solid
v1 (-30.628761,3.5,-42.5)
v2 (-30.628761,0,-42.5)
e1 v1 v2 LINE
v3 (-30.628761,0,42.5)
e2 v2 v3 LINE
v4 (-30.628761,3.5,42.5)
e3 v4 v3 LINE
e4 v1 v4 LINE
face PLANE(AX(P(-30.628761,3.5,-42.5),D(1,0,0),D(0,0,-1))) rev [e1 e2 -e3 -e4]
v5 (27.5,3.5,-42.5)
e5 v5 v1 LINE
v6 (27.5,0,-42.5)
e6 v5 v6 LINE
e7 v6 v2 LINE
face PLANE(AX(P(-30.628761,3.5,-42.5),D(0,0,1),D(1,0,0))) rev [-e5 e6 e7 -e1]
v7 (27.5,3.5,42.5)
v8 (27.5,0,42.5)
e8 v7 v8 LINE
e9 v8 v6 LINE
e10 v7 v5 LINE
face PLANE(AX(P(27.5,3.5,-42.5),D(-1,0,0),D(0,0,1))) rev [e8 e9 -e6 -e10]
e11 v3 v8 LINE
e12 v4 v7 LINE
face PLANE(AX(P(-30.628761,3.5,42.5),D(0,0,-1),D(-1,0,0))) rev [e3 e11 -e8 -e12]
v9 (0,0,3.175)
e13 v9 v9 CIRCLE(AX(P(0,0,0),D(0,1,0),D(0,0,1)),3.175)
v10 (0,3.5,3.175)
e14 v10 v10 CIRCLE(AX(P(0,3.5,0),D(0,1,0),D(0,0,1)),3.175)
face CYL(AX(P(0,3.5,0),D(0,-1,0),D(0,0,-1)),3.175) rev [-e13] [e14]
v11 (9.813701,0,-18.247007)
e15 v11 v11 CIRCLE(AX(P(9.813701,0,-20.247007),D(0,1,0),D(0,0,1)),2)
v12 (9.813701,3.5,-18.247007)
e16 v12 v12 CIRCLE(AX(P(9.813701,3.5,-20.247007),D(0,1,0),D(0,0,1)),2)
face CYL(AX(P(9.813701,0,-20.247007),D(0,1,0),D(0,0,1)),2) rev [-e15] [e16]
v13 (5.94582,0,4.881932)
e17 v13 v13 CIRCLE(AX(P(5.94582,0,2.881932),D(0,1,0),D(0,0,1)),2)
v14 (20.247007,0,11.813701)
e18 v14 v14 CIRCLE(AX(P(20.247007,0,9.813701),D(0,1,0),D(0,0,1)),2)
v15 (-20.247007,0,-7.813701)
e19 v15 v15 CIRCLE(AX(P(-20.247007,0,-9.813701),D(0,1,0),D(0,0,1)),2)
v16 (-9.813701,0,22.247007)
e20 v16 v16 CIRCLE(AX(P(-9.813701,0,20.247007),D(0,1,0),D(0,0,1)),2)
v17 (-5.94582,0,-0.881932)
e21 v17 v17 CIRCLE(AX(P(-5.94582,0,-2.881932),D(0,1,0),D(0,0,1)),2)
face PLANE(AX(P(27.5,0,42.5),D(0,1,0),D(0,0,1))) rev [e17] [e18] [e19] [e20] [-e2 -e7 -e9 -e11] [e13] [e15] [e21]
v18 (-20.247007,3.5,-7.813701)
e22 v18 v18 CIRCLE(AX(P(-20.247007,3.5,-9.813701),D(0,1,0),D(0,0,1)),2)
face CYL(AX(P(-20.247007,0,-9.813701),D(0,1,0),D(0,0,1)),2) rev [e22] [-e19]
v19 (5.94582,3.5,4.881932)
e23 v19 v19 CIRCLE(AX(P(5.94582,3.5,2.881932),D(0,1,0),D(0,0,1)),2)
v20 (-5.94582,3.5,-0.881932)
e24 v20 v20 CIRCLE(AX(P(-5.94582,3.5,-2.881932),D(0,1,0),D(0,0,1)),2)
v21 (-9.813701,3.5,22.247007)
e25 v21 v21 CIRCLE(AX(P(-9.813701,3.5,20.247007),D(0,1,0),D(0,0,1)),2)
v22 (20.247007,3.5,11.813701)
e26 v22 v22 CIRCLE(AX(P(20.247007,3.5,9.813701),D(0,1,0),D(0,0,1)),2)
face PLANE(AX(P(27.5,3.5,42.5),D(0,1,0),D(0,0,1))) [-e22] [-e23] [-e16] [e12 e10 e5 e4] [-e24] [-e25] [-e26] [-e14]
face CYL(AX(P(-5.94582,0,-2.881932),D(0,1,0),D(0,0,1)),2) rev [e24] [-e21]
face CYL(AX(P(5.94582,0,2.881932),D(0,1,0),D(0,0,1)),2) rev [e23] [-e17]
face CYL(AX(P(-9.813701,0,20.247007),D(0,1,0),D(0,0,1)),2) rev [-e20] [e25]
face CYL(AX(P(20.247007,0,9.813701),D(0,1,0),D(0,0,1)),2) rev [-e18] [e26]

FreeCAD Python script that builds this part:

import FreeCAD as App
import Part
import Sketcher
from FreeCAD import Vector
Q = App.Units.Quantity

doc = App.newDocument("Part")
params = doc.addObject("Spreadsheet::Sheet", "Params")
for row, (alias, value) in enumerate([
    ("sketch1_diameter", "6.35 mm"),
    ("sketch1_height", "85 mm"),
    ("pad1_length", "3.5 mm"),
    ("sketch2_diameter", "4 mm"),
], start=1):
    params.set(f"A{row}", alias)
    params.set(f"B{row}", "=" + value)
    params.setAlias(f"B{row}", alias)

body = doc.addObject("PartDesign::Body", "Body")

sketch1 = doc.addObject("Sketcher::SketchObject", "Sketch")
body.addObject(sketch1)
sketch1.AttachmentSupport = (doc.XZ_Plane, [""])
sketch1.MapMode = "FlatFace"
sketch1.addGeometry([
    Part.LineSegment(Vector(-30.6, -42.5, 0), Vector(-30.6, 42.5, 0)),
    Part.LineSegment(Vector(-30.6, 42.5, 0), Vector(27.5, 42.5, 0)),
    Part.LineSegment(Vector(27.5, 42.5, 0), Vector(27.5, -42.5, 0)),
    Part.LineSegment(Vector(27.5, -42.5, 0), Vector(-30.6, -42.5, 0)),
    Part.Circle(Vector(0, 0, 0), Vector(0, 0, 1), 3.2),
], False)
sketch1.addConstraint([
    Sketcher.Constraint("Coincident", 0, 2, 1, 1),
    Sketcher.Constraint("Coincident", 1, 2, 2, 1),
    Sketcher.Constraint("Coincident", 2, 2, 3, 1),
    Sketcher.Constraint("Coincident", 3, 2, 0, 1),
    Sketcher.Constraint("Vertical", 0),
    Sketcher.Constraint("Horizontal", 1),
    Sketcher.Constraint("Vertical", 2),
    Sketcher.Constraint("Horizontal", 3),
    Sketcher.Constraint("Coincident", 4, 3, -1, 1),
    Sketcher.Constraint("Diameter", 4, Q("6.35 mm")),
    Sketcher.Constraint("DistanceY", 0, 1, 0, 2, Q("85 mm")),
    Sketcher.Constraint("DistanceY", -1, 1, 0, 2, Q("42.5 mm")),
    Sketcher.Constraint("DistanceX", -1, 1, 1, 2, Q("27.5 mm")),
    Sketcher.Constraint("DistanceX", 1, 1, 1, 2, Q("58.128761 mm")),
])
sketch1.setExpression("Constraints[9]", "Params.sketch1_diameter")
sketch1.setExpression("Constraints[10]", "Params.sketch1_height")
pad1 = doc.addObject("PartDesign::Pad", "Pad")
body.addObject(pad1)
pad1.Profile = sketch1
pad1.setExpression("Length", "Params.pad1_length")
pad1.Reversed = True

sketch2 = doc.addObject("Sketcher::SketchObject", "Sketch001")
body.addObject(sketch2)
sketch2.AttachmentSupport = (doc.XZ_Plane, [""])
sketch2.MapMode = "FlatFace"
sketch2.AttachmentOffset = App.Placement(Vector(0, 0, -3.5), App.Rotation())
sketch2.addGeometry([
    Part.Circle(Vector(-5.9, -2.9, 0), Vector(0, 0, 1), 2),
    Part.Circle(Vector(5.9, 2.9, 0), Vector(0, 0, 1), 2),
    Part.Circle(Vector(20.2, 9.8, 0), Vector(0, 0, 1), 2),
    Part.Circle(Vector(9.8, -20.2, 0), Vector(0, 0, 1), 2),
    Part.Circle(Vector(-9.8, 20.2, 0), Vector(0, 0, 1), 2),
    Part.Circle(Vector(-20.2, -9.8, 0), Vector(0, 0, 1), 2),
], False)
sketch2.addConstraint([
    Sketcher.Constraint("Equal", 0, 1),
    Sketcher.Constraint("Equal", 1, 2),
    Sketcher.Constraint("Equal", 2, 3),
    Sketcher.Constraint("Equal", 3, 4),
    Sketcher.Constraint("Equal", 4, 5),
    Sketcher.Constraint("Symmetric", 0, 3, 1, 3, -1, 1),
    Sketcher.Constraint("Symmetric", 3, 3, 4, 3, -1, 1),
    Sketcher.Constraint("Symmetric", 2, 3, 5, 3, -1, 1),
    Sketcher.Constraint("Diameter", 0, Q("4 mm")),
    Sketcher.Constraint("DistanceY", -1, 1, 2, 3, Q("9.813701 mm")),
    Sketcher.Constraint("DistanceX", -1, 1, 3, 3, Q("9.813701 mm")),
    Sketcher.Constraint("DistanceX", 0, 3, -1, 1, Q("5.94582 mm")),
    Sketcher.Constraint("DistanceY", 0, 3, -1, 1, Q("2.881932 mm")),
    Sketcher.Constraint("DistanceY", 3, 3, 1, 3, Q("23.128939 mm")),
    Sketcher.Constraint("DistanceX", -1, 1, 2, 3, Q("20.247007 mm")),
])
sketch2.setExpression("Constraints[8]", "Params.sketch2_diameter")
pocket1 = doc.addObject("PartDesign::Pocket", "Pocket")
body.addObject(pocket1)
pocket1.Profile = sketch2
pocket1.Type = "ThroughAll"
pocket1.Reversed = True

doc.recompute()
